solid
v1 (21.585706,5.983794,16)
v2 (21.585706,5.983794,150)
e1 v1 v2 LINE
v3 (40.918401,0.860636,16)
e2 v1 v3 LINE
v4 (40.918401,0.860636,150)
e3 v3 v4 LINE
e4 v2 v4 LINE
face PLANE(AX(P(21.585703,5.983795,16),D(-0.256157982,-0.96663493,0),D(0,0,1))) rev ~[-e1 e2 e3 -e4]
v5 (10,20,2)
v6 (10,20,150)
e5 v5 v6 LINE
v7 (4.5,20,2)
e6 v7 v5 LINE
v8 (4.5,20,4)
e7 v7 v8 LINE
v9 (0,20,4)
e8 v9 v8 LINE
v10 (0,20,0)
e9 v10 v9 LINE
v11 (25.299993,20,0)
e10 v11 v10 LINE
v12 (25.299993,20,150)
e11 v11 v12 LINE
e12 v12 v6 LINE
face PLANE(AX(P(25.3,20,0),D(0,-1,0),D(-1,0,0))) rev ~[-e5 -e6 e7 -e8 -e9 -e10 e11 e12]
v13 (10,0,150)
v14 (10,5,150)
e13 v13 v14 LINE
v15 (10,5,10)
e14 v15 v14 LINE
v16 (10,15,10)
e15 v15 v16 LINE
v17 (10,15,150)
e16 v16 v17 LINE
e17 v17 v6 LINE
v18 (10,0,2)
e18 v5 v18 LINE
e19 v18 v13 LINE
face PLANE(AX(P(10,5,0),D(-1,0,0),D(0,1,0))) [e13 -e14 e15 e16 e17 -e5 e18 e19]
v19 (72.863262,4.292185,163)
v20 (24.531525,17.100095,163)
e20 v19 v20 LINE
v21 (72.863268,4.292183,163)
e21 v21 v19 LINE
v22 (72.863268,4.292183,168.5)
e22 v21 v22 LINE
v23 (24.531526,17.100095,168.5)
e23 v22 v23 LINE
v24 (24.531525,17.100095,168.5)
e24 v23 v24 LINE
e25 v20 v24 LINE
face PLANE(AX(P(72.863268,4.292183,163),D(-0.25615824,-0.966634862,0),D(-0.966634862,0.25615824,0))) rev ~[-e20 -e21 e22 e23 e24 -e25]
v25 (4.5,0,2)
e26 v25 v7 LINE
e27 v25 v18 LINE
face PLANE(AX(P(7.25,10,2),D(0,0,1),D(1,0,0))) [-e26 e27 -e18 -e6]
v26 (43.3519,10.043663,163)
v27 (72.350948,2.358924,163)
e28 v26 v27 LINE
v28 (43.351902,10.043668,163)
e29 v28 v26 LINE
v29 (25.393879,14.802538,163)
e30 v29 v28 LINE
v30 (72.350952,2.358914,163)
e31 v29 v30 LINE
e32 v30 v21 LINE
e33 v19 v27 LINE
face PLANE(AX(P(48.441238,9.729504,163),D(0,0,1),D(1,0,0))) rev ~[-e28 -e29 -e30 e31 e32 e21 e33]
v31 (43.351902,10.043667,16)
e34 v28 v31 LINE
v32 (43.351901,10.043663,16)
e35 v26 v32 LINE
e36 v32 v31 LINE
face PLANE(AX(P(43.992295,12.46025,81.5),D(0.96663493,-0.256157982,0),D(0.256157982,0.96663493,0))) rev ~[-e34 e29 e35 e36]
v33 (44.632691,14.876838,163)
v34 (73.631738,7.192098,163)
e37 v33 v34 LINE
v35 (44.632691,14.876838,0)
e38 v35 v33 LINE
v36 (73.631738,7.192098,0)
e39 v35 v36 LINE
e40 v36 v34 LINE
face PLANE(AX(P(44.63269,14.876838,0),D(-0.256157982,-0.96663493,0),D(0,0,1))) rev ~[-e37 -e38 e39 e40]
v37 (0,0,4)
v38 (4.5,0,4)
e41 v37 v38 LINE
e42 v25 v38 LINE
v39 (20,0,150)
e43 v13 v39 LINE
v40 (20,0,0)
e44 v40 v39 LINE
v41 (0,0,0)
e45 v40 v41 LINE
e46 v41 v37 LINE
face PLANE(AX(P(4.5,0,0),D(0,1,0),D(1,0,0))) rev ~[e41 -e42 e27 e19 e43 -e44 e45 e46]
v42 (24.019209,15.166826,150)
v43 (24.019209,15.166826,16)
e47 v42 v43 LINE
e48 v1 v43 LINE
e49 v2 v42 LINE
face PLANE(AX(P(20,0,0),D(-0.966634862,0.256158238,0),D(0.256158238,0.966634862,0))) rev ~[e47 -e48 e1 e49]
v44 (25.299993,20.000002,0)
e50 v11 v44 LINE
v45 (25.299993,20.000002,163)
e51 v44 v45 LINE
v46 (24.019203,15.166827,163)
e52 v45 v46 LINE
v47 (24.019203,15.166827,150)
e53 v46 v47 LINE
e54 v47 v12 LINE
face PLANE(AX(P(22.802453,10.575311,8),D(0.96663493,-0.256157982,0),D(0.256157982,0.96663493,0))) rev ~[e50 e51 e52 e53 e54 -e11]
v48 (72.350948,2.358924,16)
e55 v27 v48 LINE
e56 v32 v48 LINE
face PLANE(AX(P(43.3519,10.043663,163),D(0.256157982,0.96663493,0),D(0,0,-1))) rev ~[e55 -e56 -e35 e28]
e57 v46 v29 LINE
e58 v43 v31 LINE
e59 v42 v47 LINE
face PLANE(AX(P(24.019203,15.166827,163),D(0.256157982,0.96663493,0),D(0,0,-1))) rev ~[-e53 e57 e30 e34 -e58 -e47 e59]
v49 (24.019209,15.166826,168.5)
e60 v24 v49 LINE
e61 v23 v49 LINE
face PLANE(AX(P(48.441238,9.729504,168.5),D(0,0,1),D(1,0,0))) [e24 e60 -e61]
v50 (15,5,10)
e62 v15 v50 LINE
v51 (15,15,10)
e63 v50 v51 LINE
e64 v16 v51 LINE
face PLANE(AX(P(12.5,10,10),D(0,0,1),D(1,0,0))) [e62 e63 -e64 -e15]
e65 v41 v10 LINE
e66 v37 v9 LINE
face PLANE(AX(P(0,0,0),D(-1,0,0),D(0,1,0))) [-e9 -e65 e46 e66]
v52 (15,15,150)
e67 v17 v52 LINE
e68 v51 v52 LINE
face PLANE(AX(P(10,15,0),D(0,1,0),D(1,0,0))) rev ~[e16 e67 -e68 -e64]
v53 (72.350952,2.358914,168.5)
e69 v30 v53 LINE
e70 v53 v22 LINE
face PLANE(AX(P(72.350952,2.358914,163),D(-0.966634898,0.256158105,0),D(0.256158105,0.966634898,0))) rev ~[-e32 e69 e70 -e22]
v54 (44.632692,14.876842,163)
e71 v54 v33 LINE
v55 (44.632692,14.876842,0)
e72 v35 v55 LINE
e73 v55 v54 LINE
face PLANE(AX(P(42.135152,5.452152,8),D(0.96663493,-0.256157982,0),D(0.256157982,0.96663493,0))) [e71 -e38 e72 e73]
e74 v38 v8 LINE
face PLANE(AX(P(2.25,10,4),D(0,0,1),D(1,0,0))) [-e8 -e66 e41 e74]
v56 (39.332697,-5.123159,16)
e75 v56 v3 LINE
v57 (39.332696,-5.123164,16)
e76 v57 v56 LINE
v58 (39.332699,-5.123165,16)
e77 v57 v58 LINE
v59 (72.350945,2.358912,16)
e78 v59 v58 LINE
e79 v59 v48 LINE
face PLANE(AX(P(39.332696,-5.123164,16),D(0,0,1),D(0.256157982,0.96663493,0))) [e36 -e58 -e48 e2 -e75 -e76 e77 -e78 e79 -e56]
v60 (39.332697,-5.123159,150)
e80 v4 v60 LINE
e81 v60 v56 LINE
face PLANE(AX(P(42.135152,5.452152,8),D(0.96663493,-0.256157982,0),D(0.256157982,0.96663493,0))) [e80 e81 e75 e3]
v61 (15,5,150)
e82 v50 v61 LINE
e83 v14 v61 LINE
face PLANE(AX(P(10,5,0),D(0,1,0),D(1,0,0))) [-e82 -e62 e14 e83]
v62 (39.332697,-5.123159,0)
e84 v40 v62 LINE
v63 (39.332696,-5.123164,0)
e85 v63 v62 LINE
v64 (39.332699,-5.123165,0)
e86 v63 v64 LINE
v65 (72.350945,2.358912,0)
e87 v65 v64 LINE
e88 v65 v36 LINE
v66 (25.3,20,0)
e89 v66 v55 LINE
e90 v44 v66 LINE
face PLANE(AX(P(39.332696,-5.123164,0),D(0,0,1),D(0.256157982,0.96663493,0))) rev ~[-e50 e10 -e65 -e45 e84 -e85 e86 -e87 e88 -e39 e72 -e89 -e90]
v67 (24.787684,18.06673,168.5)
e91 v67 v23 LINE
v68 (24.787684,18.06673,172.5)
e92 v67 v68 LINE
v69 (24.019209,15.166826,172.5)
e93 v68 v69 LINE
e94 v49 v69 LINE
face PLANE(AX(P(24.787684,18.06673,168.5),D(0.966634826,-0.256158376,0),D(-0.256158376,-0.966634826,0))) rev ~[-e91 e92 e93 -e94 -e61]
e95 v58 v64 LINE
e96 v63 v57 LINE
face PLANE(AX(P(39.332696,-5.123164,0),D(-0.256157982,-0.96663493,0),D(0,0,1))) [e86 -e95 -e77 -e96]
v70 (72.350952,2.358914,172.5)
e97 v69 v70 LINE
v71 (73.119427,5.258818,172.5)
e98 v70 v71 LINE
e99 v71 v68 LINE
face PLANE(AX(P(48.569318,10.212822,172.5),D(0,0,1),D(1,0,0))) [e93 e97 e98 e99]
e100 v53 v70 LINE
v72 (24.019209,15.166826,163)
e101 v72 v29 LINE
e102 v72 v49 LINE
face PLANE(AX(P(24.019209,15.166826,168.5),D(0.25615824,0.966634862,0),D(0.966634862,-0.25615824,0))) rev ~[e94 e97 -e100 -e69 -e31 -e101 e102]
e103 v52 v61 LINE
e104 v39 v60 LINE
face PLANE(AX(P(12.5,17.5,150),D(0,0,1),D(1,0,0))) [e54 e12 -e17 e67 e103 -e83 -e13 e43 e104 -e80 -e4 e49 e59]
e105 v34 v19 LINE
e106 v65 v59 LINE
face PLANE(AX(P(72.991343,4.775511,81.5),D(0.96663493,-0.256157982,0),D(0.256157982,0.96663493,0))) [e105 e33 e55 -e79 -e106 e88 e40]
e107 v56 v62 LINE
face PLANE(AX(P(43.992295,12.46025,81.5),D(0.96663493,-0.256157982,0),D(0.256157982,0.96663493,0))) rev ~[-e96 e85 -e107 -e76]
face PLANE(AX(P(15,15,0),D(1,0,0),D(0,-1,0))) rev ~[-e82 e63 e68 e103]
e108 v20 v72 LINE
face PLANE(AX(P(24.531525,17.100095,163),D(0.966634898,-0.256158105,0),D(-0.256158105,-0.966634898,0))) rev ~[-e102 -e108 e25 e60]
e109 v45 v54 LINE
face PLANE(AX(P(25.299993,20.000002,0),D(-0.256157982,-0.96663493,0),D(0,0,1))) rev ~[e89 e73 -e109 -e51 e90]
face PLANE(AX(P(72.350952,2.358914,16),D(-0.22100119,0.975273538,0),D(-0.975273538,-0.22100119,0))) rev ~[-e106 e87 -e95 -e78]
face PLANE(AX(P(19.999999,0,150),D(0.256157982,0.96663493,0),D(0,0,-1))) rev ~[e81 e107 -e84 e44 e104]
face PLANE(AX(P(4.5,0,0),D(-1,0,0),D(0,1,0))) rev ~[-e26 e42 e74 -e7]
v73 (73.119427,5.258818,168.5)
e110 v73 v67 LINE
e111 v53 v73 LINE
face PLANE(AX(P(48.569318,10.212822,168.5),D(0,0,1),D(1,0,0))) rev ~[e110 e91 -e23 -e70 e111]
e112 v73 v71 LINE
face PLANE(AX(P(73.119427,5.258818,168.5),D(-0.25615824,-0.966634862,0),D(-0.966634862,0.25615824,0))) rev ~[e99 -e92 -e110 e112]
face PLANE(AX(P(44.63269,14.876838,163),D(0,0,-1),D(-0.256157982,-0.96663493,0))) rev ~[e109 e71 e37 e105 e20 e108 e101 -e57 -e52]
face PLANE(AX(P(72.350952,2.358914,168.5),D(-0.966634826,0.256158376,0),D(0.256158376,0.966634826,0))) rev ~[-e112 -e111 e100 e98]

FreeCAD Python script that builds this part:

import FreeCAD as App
import Part
import Sketcher

V = App.Vector


def add_polygon(sketch, points):
    """Adds a closed chain of lines whose ends are joined by coincident constraints."""
    first, n = sketch.GeometryCount, len(points)
    for a, b in zip(points, points[1:] + points[:1]):
        sketch.addGeometry(Part.LineSegment(App.Vector(*a, 0), App.Vector(*b, 0)), False)
    for i in range(n):
        sketch.addConstraint(Sketcher.Constraint("Coincident", first + i, 2, first + (i + 1) % n, 1))

doc = App.newDocument("Part")
body = doc.addObject("PartDesign::Body", "Body")

sketch1 = body.newObject("Sketcher::SketchObject", "Sketch")
sketch1.AttachmentSupport = (doc.getObject("XY_Plane"), [""])
sketch1.MapMode = "FlatFace"
add_polygon(sketch1, [(0, 20), (0, 0), (4.5, 0), (4.5, 20)])
sketch1.addConstraint(Sketcher.Constraint("Vertical", 0))
sketch1.addConstraint(Sketcher.Constraint("Horizontal", 1))
sketch1.addConstraint(Sketcher.Constraint("Vertical", 2))
sketch1.addConstraint(Sketcher.Constraint("Horizontal", 3))
sketch1.addConstraint(Sketcher.Constraint("Coincident", 0, 2, -1, 1))
sketch1.addConstraint(Sketcher.Constraint("DistanceY", 0, 2, 0, 1, 20.0))
sketch1.addConstraint(Sketcher.Constraint("DistanceX", 1, 1, 1, 2, 4.5))
pad1 = body.newObject("PartDesign::Pad", "Pad")
pad1.Profile = sketch1
pad1.Length = 4

sketch2 = body.newObject("Sketcher::SketchObject", "Sketch001")
sketch2.AttachmentSupport = (doc.getObject("XY_Plane"), [""])
sketch2.MapMode = "FlatFace"
add_polygon(sketch2, [(4.5, 20), (4.5, 0), (10, 0), (10, 20)])
sketch2.addConstraint(Sketcher.Constraint("Vertical", 0))
sketch2.addConstraint(Sketcher.Constraint("Horizontal", 1))
sketch2.addConstraint(Sketcher.Constraint("Vertical", 2))
sketch2.addConstraint(Sketcher.Constraint("Horizontal", 3))
sketch2.addConstraint(Sketcher.Constraint("PointOnObject", 0, 2, -1))
sketch2.addConstraint(Sketcher.Constraint("DistanceY", 0, 2, 0, 1, 20.0))
sketch2.addConstraint(Sketcher.Constraint("DistanceX", 1, 1, 1, 2, 5.5))
sketch2.addConstraint(Sketcher.Constraint("DistanceX", -1, 1, 1, 2, 10.0))
pad2 = body.newObject("PartDesign::Pad", "Pad001")
pad2.Profile = sketch2
pad2.Length = 2

sketch3 = body.newObject("Sketcher::SketchObject", "Sketch002")
sketch3.AttachmentSupport = (doc.getObject("XY_Plane"), [""])
sketch3.MapMode = "FlatFace"
add_polygon(sketch3, [(10, 20), (10, 15), (15, 15), (15, 5), (10, 5), (10, 0), (20, 0), (25.3, 20)])
sketch3.addConstraint(Sketcher.Constraint("Vertical", 0))
sketch3.addConstraint(Sketcher.Constraint("Horizontal", 1))
sketch3.addConstraint(Sketcher.Constraint("Vertical", 2))
sketch3.addConstraint(Sketcher.Constraint("Horizontal", 3))
sketch3.addConstraint(Sketcher.Constraint("Vertical", 4))
sketch3.addConstraint(Sketcher.Constraint("Horizontal", 5))
sketch3.addConstraint(Sketcher.Constraint("Horizontal", 7))
sketch3.addConstraint(Sketcher.Constraint("PointOnObject", 4, 2, -1))
sketch3.addConstraint(Sketcher.Constraint("Vertical", 0, 2, 3, 2))
sketch3.addConstraint(Sketcher.Constraint("Equal", 3, 0))
sketch3.addConstraint(Sketcher.Constraint("Equal", 5, 2))
sketch3.addConstraint(Sketcher.Constraint("Equal", 0, 4))
sketch3.addConstraint(Sketcher.Constraint("DistanceX", 1, 1, 1, 2, 5.0))
sketch3.addConstraint(Sketcher.Constraint("DistanceX", 5, 1, 5, 2, 10.0))
sketch3.addConstraint(Sketcher.Constraint("DistanceX", 7, 2, 7, 1, 15.3))
sketch3.addConstraint(Sketcher.Constraint("DistanceX", -1, 1, 0, 2, 10.0))
pad3 = body.newObject("PartDesign::Pad", "Pad002")
pad3.Profile = sketch3
pad3.Length = 150

sketch4 = body.newObject("Sketcher::SketchObject", "Sketch003")
sketch4.AttachmentSupport = (doc.getObject("XY_Plane"), [""])
sketch4.MapMode = "FlatFace"
add_polygon(sketch4, [(10, 15), (10, 5), (15, 5), (15, 15)])
sketch4.addConstraint(Sketcher.Constraint("Vertical", 0))
sketch4.addConstraint(Sketcher.Constraint("Horizontal", 1))
sketch4.addConstraint(Sketcher.Constraint("Vertical", 2))
sketch4.addConstraint(Sketcher.Constraint("Horizontal", 3))
sketch4.addConstraint(Sketcher.Constraint("DistanceX", 1, 1, 1, 2, 5.0))
sketch4.addConstraint(Sketcher.Constraint("DistanceY", 0, 2, 0, 1, 10.0))
sketch4.addConstraint(Sketcher.Constraint("DistanceX", -1, 1, 0, 2, 10.0))
sketch4.addConstraint(Sketcher.Constraint("DistanceY", -1, 1, 0, 2, 5.0))
pad4 = body.newObject("PartDesign::Pad", "Pad003")
pad4.Profile = sketch4
pad4.Length = 10

sketch5 = body.newObject("Sketcher::SketchObject", "Sketch004")
sketch5.Placement = App.Placement(V(18.687659, -4.95223, 0), App.Rotation(V(0.256157982, 0.96663493, 0), V(0, 0, 1), V(0.96663493, -0.256157982, 0), "ZXY"))
add_polygon(sketch5, [(25.813501, 0), (25.813501, 163), (20.813501, 163), (20.813501, 16), (11.313501, 16), (11.313501, 150), (5.123165, 150), (5.123165, 0)])
sketch5.addConstraint(Sketcher.Constraint("Vertical", 0))
sketch5.addConstraint(Sketcher.Constraint("Horizontal", 1))
sketch5.addConstraint(Sketcher.Constraint("Vertical", 2))
sketch5.addConstraint(Sketcher.Constraint("Horizontal", 3))
sketch5.addConstraint(Sketcher.Constraint("Vertical", 4))
sketch5.addConstraint(Sketcher.Constraint("Horizontal", 5))
sketch5.addConstraint(Sketcher.Constraint("Vertical", 6))
sketch5.addConstraint(Sketcher.Constraint("Horizontal", 7))
sketch5.addConstraint(Sketcher.Constraint("PointOnObject", 6, 2, -1))
sketch5.addConstraint(Sketcher.Constraint("DistanceX", 1, 2, 1, 1, 5.0))
sketch5.addConstraint(Sketcher.Constraint("DistanceY", 0, 1, 0, 2, 163.0))
sketch5.addConstraint(Sketcher.Constraint("DistanceY", 2, 2, 2, 1, 147.0))
sketch5.addConstraint(Sketcher.Constraint("DistanceY", 4, 1, 4, 2, 134.0))
sketch5.addConstraint(Sketcher.Constraint("DistanceX", 3, 2, 3, 1, 9.5))
sketch5.addConstraint(Sketcher.Constraint("DistanceX", -1, 1, 0, 2, 25.813501))
sketch5.addConstraint(Sketcher.Constraint("DistanceX", 5, 2, 5, 1, 6.190336))
pad5 = body.newObject("PartDesign::Pad", "Pad004")
pad5.Profile = sketch5
pad5.Length = 20

sketch6 = body.newObject("Sketcher::SketchObject", "Sketch005")
sketch6.Placement = App.Placement(V(38.020356, -10.075394, 0), App.Rotation(V(0.256157982, 0.96663493, 0), V(0, 0, 1), V(0.96663493, -0.256157982, 0), "ZXY"))
add_polygon(sketch6, [(25.813501, 0), (25.813501, 163), (20.813501, 163), (20.813501, 16), (5.123165, 16), (5.123165, 0)])
sketch6.addConstraint(Sketcher.Constraint("Vertical", 0))
sketch6.addConstraint(Sketcher.Constraint("Horizontal", 1))
sketch6.addConstraint(Sketcher.Constraint("Vertical", 2))
sketch6.addConstraint(Sketcher.Constraint("Horizontal", 3))
sketch6.addConstraint(Sketcher.Constraint("Vertical", 4))
sketch6.addConstraint(Sketcher.Constraint("Horizontal", 5))
sketch6.addConstraint(Sketcher.Constraint("PointOnObject", 4, 2, -1))
sketch6.addConstraint(Sketcher.Constraint("DistanceX", 1, 2, 1, 1, 5.0))
sketch6.addConstraint(Sketcher.Constraint("DistanceY", 0, 1, 0, 2, 163.0))
sketch6.addConstraint(Sketcher.Constraint("DistanceY", 2, 2, 2, 1, 147.0))
sketch6.addConstraint(Sketcher.Constraint("DistanceX", -1, 1, 0, 2, 25.813501))
sketch6.addConstraint(Sketcher.Constraint("DistanceX", 3, 2, 3, 1, 15.690336))
pad6 = body.newObject("PartDesign::Pad", "Pad005")
pad6.Profile = sketch6
pad6.Length = 30

sketch7 = body.newObject("Sketcher::SketchObject", "Sketch006")
sketch7.AttachmentSupport = (doc.getObject("XY_Plane"), [""])
sketch7.MapMode = "FlatFace"
sketch7.AttachmentOffset = App.Placement(V(0, 0, 16), App.Rotation())
add_polygon(sketch7, [(72.350952, 2.358914), (39.332697, -5.123165), (68.331743, -12.807912)])
sketch7.addConstraint(Sketcher.Constraint("Perpendicular", 1, 2))
sketch7.addConstraint(Sketcher.Constraint("Distance", 1, 30.0))
sketch7.addConstraint(Sketcher.Constraint("Distance", 0, 33.855379))
sketch7.addConstraint(Sketcher.Constraint("DistanceX", 1, 2, 2, 2, 4.019209))
sketch7.addConstraint(Sketcher.Constraint("DistanceX", -1, 1, 0, 2, 39.332697))
sketch7.addConstraint(Sketcher.Constraint("DistanceY", 0, 2, -1, 1, 5.123165))
pocket1 = body.newObject("PartDesign::Pocket", "Pocket")
pocket1.Profile = sketch7
pocket1.Length = 16

sketch8 = body.newObject("Sketcher::SketchObject", "Sketch007")
sketch8.AttachmentSupport = (doc.getObject("XY_Plane"), [""])
sketch8.MapMode = "FlatFace"
sketch8.AttachmentOffset = App.Placement(V(0, 0, 163), App.Rotation())
add_polygon(sketch8, [(24.531525, 17.100095), (24.019209, 15.166826), (72.350952, 2.358914), (72.863268, 4.292183)])
sketch8.addConstraint(Sketcher.Constraint("Perpendicular", 0, 1))
sketch8.addConstraint(Sketcher.Constraint("Perpendicular", 1, 2))
sketch8.addConstraint(Sketcher.Constraint("Perpendicular", 2, 3))
sketch8.addConstraint(Sketcher.Constraint("Distance", 0, 1.999999))
sketch8.addConstraint(Sketcher.Constraint("Distance", 1, 50.0))
sketch8.addConstraint(Sketcher.Constraint("DistanceX", -1, 1, 0, 2, 24.019209))
sketch8.addConstraint(Sketcher.Constraint("DistanceX", -1, 1, 2, 2, 72.863268))
sketch8.addConstraint(Sketcher.Constraint("DistanceY", -1, 1, 0, 2, 15.166826))
pad7 = body.newObject("PartDesign::Pad", "Pad006")
pad7.Profile = sketch8
pad7.Length = 5.5

sketch9 = body.newObject("Sketcher::SketchObject", "Sketch008")
sketch9.AttachmentSupport = (doc.getObject("XY_Plane"), [""])
sketch9.MapMode = "FlatFace"
sketch9.AttachmentOffset = App.Placement(V(0, 0, 168.5), App.Rotation())
add_polygon(sketch9, [(24.787684, 18.06673), (24.019209, 15.166826), (72.350952, 2.358914), (73.119427, 5.258818)])
sketch9.addConstraint(Sketcher.Constraint("Perpendicular", 0, 1))
sketch9.addConstraint(Sketcher.Constraint("Perpendicular", 1, 2))
sketch9.addConstraint(Sketcher.Constraint("Perpendicular", 2, 3))
sketch9.addConstraint(Sketcher.Constraint("Distance", 0, 3.0))
sketch9.addConstraint(Sketcher.Constraint("Distance", 1, 50.0))
sketch9.addConstraint(Sketcher.Constraint("DistanceX", -1, 1, 0, 2, 24.019209))
sketch9.addConstraint(Sketcher.Constraint("DistanceY", -1, 1, 3, 2, 18.06673))
sketch9.addConstraint(Sketcher.Constraint("DistanceX", 3, 2, 1, 2, 47.563268))
pad8 = body.newObject("PartDesign::Pad", "Pad007")
pad8.Profile = sketch9
pad8.Length = 4

doc.recompute()
